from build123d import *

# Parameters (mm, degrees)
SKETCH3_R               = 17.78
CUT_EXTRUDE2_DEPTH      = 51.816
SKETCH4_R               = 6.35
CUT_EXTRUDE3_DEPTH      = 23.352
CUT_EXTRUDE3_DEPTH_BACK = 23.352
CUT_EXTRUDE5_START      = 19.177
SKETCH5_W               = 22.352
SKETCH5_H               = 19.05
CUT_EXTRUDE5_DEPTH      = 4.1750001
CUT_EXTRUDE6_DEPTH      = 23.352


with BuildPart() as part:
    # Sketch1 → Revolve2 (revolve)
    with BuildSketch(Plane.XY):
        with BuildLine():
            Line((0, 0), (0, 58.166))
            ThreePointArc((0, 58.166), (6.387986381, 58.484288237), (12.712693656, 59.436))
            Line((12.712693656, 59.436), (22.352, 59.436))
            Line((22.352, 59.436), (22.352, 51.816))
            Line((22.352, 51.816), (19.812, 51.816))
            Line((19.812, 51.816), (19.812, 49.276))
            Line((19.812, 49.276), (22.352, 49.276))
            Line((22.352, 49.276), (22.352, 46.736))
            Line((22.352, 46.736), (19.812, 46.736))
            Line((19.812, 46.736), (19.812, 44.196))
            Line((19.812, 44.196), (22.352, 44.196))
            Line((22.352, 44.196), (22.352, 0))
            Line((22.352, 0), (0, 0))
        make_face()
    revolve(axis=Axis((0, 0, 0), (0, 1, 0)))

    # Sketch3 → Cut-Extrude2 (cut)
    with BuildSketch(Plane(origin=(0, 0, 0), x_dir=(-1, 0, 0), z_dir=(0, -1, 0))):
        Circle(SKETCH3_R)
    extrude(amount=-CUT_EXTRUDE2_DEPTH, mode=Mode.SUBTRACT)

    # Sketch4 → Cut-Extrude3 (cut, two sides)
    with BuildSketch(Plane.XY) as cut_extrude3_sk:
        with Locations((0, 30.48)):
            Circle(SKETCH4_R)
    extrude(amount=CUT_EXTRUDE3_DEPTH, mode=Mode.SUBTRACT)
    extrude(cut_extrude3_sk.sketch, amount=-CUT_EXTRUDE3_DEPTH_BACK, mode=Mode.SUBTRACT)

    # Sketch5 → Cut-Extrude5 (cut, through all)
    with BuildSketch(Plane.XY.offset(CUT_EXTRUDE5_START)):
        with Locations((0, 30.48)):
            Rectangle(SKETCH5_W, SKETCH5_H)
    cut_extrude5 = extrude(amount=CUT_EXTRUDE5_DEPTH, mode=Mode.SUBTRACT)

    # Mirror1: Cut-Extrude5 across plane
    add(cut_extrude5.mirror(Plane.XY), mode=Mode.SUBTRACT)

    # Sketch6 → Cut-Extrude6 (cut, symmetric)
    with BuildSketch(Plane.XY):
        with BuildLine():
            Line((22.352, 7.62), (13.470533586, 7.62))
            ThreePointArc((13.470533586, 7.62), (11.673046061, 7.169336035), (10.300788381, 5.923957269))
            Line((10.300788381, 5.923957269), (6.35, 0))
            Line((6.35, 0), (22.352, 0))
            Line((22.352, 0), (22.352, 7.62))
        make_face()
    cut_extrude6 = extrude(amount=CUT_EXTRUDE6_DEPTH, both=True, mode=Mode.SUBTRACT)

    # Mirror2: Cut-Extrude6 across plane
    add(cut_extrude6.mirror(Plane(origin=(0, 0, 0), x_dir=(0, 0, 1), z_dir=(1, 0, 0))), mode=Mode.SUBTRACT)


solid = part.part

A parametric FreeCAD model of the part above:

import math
import FreeCAD as App
import Part
import Sketcher
Q = App.Units.Quantity

doc = App.newDocument("Part")
body = doc.addObject("PartDesign::Body", "Body")

sketch1 = body.newObject("Sketcher::SketchObject", "Sketch")
sketch1.AttachmentSupport = (doc.getObject("XY_Plane"), [""])
sketch1.MapMode = "FlatFace"
sketch1.addGeometry(Part.LineSegment(App.Vector(0, 58.2, 0), App.Vector(0, 0, 0)), False)
sketch1.addGeometry(Part.LineSegment(App.Vector(0, 0, 0), App.Vector(22.4, 0, 0)), False)
sketch1.addGeometry(Part.LineSegment(App.Vector(22.4, 0, 0), App.Vector(22.4, 44.2, 0)), False)
sketch1.addGeometry(Part.LineSegment(App.Vector(22.4, 44.2, 0), App.Vector(19.8, 44.2, 0)), False)
sketch1.addGeometry(Part.LineSegment(App.Vector(19.8, 44.2, 0), App.Vector(19.8, 46.7, 0)), False)
sketch1.addGeometry(Part.LineSegment(App.Vector(19.8, 46.7, 0), App.Vector(22.4, 46.7, 0)), False)
sketch1.addGeometry(Part.LineSegment(App.Vector(22.4, 46.7, 0), App.Vector(22.4, 49.3, 0)), False)
sketch1.addGeometry(Part.LineSegment(App.Vector(22.4, 49.3, 0), App.Vector(19.8, 49.3, 0)), False)
sketch1.addGeometry(Part.LineSegment(App.Vector(19.8, 49.3, 0), App.Vector(19.8, 51.8, 0)), False)
sketch1.addGeometry(Part.LineSegment(App.Vector(19.8, 51.8, 0), App.Vector(22.4, 51.8, 0)), False)
sketch1.addGeometry(Part.LineSegment(App.Vector(22.4, 51.8, 0), App.Vector(22.4, 59.4, 0)), False)
sketch1.addGeometry(Part.LineSegment(App.Vector(22.4, 59.4, 0), App.Vector(12.7, 59.4, 0)), False)
sketch1.addGeometry(Part.ArcOfCircle(Part.Circle(App.Vector(0, 122.4, 0), App.Vector(0, 0, 1), 64.3), math.radians(-90), math.radians(-78.59)), False)
sketch1.addConstraint(Sketcher.Constraint("Coincident", 0, 2, 1, 1))
sketch1.addConstraint(Sketcher.Constraint("Coincident", 1, 2, 2, 1))
sketch1.addConstraint(Sketcher.Constraint("Coincident", 2, 2, 3, 1))
sketch1.addConstraint(Sketcher.Constraint("Coincident", 3, 2, 4, 1))
sketch1.addConstraint(Sketcher.Constraint("Coincident", 4, 2, 5, 1))
sketch1.addConstraint(Sketcher.Constraint("Coincident", 5, 2, 6, 1))
sketch1.addConstraint(Sketcher.Constraint("Coincident", 6, 2, 7, 1))
sketch1.addConstraint(Sketcher.Constraint("Coincident", 7, 2, 8, 1))
sketch1.addConstraint(Sketcher.Constraint("Coincident", 8, 2, 9, 1))
sketch1.addConstraint(Sketcher.Constraint("Coincident", 9, 2, 10, 1))
sketch1.addConstraint(Sketcher.Constraint("Coincident", 10, 2, 11, 1))
sketch1.addConstraint(Sketcher.Constraint("Coincident", 11, 2, 12, 2))
sketch1.addConstraint(Sketcher.Constraint("Coincident", 12, 1, 0, 1))
sketch1.addConstraint(Sketcher.Constraint("Vertical", 0))
sketch1.addConstraint(Sketcher.Constraint("Horizontal", 1))
sketch1.addConstraint(Sketcher.Constraint("Vertical", 2))
sketch1.addConstraint(Sketcher.Constraint("Horizontal", 3))
sketch1.addConstraint(Sketcher.Constraint("Vertical", 4))
sketch1.addConstraint(Sketcher.Constraint("Horizontal", 5))
sketch1.addConstraint(Sketcher.Constraint("Vertical", 6))
sketch1.addConstraint(Sketcher.Constraint("Horizontal", 7))
sketch1.addConstraint(Sketcher.Constraint("Vertical", 8))
sketch1.addConstraint(Sketcher.Constraint("Horizontal", 9))
sketch1.addConstraint(Sketcher.Constraint("Vertical", 10))
sketch1.addConstraint(Sketcher.Constraint("Horizontal", 11))
sketch1.addConstraint(Sketcher.Constraint("Coincident", 0, 2, -1, 1))
sketch1.addConstraint(Sketcher.Constraint("PointOnObject", 12, 3, -2))
sketch1.addConstraint(Sketcher.Constraint("Vertical", 2, 2, 5, 2))
sketch1.addConstraint(Sketcher.Constraint("Vertical", 4, 2, 7, 2))
sketch1.addConstraint(Sketcher.Constraint("Vertical", 6, 2, 9, 2))
sketch1.addConstraint(Sketcher.Constraint("Equal", 9, 4))
sketch1.addConstraint(Sketcher.Constraint("Equal", 4, 6))
sketch1.addConstraint(Sketcher.Constraint("Equal", 6, 8))
sketch1.addConstraint(Sketcher.Constraint("Radius", 12, Q("2.53 in")))
sketch1.addConstraint(Sketcher.Constraint("DistanceX", 3, 2, 3, 1, Q("0.1 in")))
sketch1.addConstraint(Sketcher.Constraint("DistanceY", 10, 1, 10, 2, Q("0.3 in")))
sketch1.addConstraint(Sketcher.Constraint("DistanceX", 1, 1, 1, 2, Q("0.88 in")))
sketch1.addConstraint(Sketcher.Constraint("DistanceY", 0, 2, 0, 1, Q("2.29 in")))
sketch1.addConstraint(Sketcher.Constraint("DistanceY", 2, 1, 2, 2, Q("1.74 in")))
revolution = body.newObject("PartDesign::Revolution", "Revolution")
revolution.Profile = sketch1
revolution.ReferenceAxis = (sketch1, ["V_Axis"])
revolution.Angle = 360

sketch2 = body.newObject("Sketcher::SketchObject", "Sketch001")
sketch2.AttachmentSupport = (doc.getObject("XZ_Plane"), [""])
sketch2.MapMode = "FlatFace"
sketch2.addGeometry(Part.Circle(App.Vector(0, 0, 0), App.Vector(0, 0, 1), 18), False)
sketch2.addConstraint(Sketcher.Constraint("Coincident", 0, 3, -1, 1))
sketch2.addConstraint(Sketcher.Constraint("Diameter", 0, Q("1.4 in")))
pocket1 = body.newObject("PartDesign::Pocket", "Pocket")
pocket1.Profile = sketch2
pocket1.Length = Q("2.04 in")

sketch3 = body.newObject("Sketcher::SketchObject", "Sketch002")
sketch3.AttachmentSupport = (doc.getObject("XY_Plane"), [""])
sketch3.MapMode = "FlatFace"
sketch3.addGeometry(Part.Circle(App.Vector(0, 30, 0), App.Vector(0, 0, 1), 6), False)
sketch3.addConstraint(Sketcher.Constraint("PointOnObject", 0, 3, -2))
sketch3.addConstraint(Sketcher.Constraint("Diameter", 0, Q("0.5 in")))
sketch3.addConstraint(Sketcher.Constraint("DistanceY", -1, 1, 0, 3, Q("1.2 in")))
pocket2 = body.newObject("PartDesign::Pocket", "Pocket001")
pocket2.Profile = sketch3
pocket2.Type = "ThroughAll"
pocket2.Midplane = True

sketch4 = body.newObject("Sketcher::SketchObject", "Sketch003")
sketch4.AttachmentSupport = (doc.getObject("XY_Plane"), [""])
sketch4.MapMode = "FlatFace"
sketch4.AttachmentOffset = App.Placement(App.Vector(0, 0, 0.755 * 25.4), App.Rotation())
sketch4.addGeometry(Part.LineSegment(App.Vector(-11, 40, 0), App.Vector(-11, 21, 0)), False)
sketch4.addGeometry(Part.LineSegment(App.Vector(-11, 21, 0), App.Vector(11, 21, 0)), False)
sketch4.addGeometry(Part.LineSegment(App.Vector(11, 21, 0), App.Vector(11, 40, 0)), False)
sketch4.addGeometry(Part.LineSegment(App.Vector(11, 40, 0), App.Vector(-11, 40, 0)), False)
sketch4.addConstraint(Sketcher.Constraint("Coincident", 0, 2, 1, 1))
sketch4.addConstraint(Sketcher.Constraint("Coincident", 1, 2, 2, 1))
sketch4.addConstraint(Sketcher.Constraint("Coincident", 2, 2, 3, 1))
sketch4.addConstraint(Sketcher.Constraint("Coincident", 3, 2, 0, 1))
sketch4.addConstraint(Sketcher.Constraint("Vertical", 0))
sketch4.addConstraint(Sketcher.Constraint("Horizontal", 1))
sketch4.addConstraint(Sketcher.Constraint("Vertical", 2))
sketch4.addConstraint(Sketcher.Constraint("Horizontal", 3))
sketch4.addConstraint(Sketcher.Constraint("DistanceX", 1, 1, 1, 2, Q("0.88 in")))
sketch4.addConstraint(Sketcher.Constraint("DistanceY", 0, 2, 0, 1, Q("0.75 in")))
sketch4.addConstraint(Sketcher.Constraint("DistanceX", 0, 2, -1, 1, Q("0.44 in")))
sketch4.addConstraint(Sketcher.Constraint("DistanceY", -1, 1, 0, 2, Q("0.825 in")))
pocket3 = body.newObject("PartDesign::Pocket", "Pocket002")
pocket3.Profile = sketch4
pocket3.Type = "ThroughAll"
pocket3.Reversed = True
doc.recompute()

mirrored = body.newObject("PartDesign::Mirrored", "Mirrored")
mirrored.Originals = [pocket3]
mirrored.MirrorPlane = (doc.getObject("XY_Plane"), [""])
body.Tip = mirrored

sketch5 = body.newObject("Sketcher::SketchObject", "Sketch004")
sketch5.AttachmentSupport = (doc.getObject("XY_Plane"), [""])
sketch5.MapMode = "FlatFace"
sketch5.addGeometry(Part.LineSegment(App.Vector(22.4, 7.6, 0), App.Vector(13.5, 7.6, 0)), False)
sketch5.addGeometry(Part.ArcOfCircle(Part.Circle(App.Vector(13.5, 3.8, 0), App.Vector(0, 0, 1), 3.8), math.radians(90), math.radians(146)), False)
sketch5.addGeometry(Part.LineSegment(App.Vector(10.3, 5.9, 0), App.Vector(6.3, 0, 0)), False)
sketch5.addGeometry(Part.LineSegment(App.Vector(6.3, 0, 0), App.Vector(22.4, 0, 0)), False)
sketch5.addGeometry(Part.LineSegment(App.Vector(22.4, 0, 0), App.Vector(22.4, 7.6, 0)), False)
sketch5.addConstraint(Sketcher.Constraint("Tangent", 0, 2, 1, 1))
sketch5.addConstraint(Sketcher.Constraint("Tangent", 1, 2, 2, 1))
sketch5.addConstraint(Sketcher.Constraint("Coincident", 2, 2, 3, 1))
sketch5.addConstraint(Sketcher.Constraint("Coincident", 3, 2, 4, 1))
sketch5.addConstraint(Sketcher.Constraint("Coincident", 4, 2, 0, 1))
sketch5.addConstraint(Sketcher.Constraint("Horizontal", 0))
sketch5.addConstraint(Sketcher.Constraint("Horizontal", 3))
sketch5.addConstraint(Sketcher.Constraint("Vertical", 4))
sketch5.addConstraint(Sketcher.Constraint("PointOnObject", 2, 2, -1))
sketch5.addConstraint(Sketcher.Constraint("Radius", 1, Q("0.15 in")))
sketch5.addConstraint(Sketcher.Constraint("DistanceY", 4, 1, 4, 2, Q("0.3 in")))
sketch5.addConstraint(Sketcher.Constraint("DistanceX", 3, 1, 3, 2, Q("0.63 in")))
sketch5.addConstraint(Sketcher.Constraint("Angle", 2, Q("-123.7 deg")))
sketch5.addConstraint(Sketcher.Constraint("DistanceX", -1, 1, 2, 2, Q("0.25 in")))
pocket4 = body.newObject("PartDesign::Pocket", "Pocket003")
pocket4.Profile = sketch5
pocket4.Length = 46.704
pocket4.Midplane = True
doc.recompute()

mirrored2 = body.newObject("PartDesign::Mirrored", "Mirrored001")
mirrored2.Originals = [pocket4]
mirrored2.MirrorPlane = (doc.getObject("YZ_Plane"), [""])
body.Tip = mirrored2

doc.recompute()
